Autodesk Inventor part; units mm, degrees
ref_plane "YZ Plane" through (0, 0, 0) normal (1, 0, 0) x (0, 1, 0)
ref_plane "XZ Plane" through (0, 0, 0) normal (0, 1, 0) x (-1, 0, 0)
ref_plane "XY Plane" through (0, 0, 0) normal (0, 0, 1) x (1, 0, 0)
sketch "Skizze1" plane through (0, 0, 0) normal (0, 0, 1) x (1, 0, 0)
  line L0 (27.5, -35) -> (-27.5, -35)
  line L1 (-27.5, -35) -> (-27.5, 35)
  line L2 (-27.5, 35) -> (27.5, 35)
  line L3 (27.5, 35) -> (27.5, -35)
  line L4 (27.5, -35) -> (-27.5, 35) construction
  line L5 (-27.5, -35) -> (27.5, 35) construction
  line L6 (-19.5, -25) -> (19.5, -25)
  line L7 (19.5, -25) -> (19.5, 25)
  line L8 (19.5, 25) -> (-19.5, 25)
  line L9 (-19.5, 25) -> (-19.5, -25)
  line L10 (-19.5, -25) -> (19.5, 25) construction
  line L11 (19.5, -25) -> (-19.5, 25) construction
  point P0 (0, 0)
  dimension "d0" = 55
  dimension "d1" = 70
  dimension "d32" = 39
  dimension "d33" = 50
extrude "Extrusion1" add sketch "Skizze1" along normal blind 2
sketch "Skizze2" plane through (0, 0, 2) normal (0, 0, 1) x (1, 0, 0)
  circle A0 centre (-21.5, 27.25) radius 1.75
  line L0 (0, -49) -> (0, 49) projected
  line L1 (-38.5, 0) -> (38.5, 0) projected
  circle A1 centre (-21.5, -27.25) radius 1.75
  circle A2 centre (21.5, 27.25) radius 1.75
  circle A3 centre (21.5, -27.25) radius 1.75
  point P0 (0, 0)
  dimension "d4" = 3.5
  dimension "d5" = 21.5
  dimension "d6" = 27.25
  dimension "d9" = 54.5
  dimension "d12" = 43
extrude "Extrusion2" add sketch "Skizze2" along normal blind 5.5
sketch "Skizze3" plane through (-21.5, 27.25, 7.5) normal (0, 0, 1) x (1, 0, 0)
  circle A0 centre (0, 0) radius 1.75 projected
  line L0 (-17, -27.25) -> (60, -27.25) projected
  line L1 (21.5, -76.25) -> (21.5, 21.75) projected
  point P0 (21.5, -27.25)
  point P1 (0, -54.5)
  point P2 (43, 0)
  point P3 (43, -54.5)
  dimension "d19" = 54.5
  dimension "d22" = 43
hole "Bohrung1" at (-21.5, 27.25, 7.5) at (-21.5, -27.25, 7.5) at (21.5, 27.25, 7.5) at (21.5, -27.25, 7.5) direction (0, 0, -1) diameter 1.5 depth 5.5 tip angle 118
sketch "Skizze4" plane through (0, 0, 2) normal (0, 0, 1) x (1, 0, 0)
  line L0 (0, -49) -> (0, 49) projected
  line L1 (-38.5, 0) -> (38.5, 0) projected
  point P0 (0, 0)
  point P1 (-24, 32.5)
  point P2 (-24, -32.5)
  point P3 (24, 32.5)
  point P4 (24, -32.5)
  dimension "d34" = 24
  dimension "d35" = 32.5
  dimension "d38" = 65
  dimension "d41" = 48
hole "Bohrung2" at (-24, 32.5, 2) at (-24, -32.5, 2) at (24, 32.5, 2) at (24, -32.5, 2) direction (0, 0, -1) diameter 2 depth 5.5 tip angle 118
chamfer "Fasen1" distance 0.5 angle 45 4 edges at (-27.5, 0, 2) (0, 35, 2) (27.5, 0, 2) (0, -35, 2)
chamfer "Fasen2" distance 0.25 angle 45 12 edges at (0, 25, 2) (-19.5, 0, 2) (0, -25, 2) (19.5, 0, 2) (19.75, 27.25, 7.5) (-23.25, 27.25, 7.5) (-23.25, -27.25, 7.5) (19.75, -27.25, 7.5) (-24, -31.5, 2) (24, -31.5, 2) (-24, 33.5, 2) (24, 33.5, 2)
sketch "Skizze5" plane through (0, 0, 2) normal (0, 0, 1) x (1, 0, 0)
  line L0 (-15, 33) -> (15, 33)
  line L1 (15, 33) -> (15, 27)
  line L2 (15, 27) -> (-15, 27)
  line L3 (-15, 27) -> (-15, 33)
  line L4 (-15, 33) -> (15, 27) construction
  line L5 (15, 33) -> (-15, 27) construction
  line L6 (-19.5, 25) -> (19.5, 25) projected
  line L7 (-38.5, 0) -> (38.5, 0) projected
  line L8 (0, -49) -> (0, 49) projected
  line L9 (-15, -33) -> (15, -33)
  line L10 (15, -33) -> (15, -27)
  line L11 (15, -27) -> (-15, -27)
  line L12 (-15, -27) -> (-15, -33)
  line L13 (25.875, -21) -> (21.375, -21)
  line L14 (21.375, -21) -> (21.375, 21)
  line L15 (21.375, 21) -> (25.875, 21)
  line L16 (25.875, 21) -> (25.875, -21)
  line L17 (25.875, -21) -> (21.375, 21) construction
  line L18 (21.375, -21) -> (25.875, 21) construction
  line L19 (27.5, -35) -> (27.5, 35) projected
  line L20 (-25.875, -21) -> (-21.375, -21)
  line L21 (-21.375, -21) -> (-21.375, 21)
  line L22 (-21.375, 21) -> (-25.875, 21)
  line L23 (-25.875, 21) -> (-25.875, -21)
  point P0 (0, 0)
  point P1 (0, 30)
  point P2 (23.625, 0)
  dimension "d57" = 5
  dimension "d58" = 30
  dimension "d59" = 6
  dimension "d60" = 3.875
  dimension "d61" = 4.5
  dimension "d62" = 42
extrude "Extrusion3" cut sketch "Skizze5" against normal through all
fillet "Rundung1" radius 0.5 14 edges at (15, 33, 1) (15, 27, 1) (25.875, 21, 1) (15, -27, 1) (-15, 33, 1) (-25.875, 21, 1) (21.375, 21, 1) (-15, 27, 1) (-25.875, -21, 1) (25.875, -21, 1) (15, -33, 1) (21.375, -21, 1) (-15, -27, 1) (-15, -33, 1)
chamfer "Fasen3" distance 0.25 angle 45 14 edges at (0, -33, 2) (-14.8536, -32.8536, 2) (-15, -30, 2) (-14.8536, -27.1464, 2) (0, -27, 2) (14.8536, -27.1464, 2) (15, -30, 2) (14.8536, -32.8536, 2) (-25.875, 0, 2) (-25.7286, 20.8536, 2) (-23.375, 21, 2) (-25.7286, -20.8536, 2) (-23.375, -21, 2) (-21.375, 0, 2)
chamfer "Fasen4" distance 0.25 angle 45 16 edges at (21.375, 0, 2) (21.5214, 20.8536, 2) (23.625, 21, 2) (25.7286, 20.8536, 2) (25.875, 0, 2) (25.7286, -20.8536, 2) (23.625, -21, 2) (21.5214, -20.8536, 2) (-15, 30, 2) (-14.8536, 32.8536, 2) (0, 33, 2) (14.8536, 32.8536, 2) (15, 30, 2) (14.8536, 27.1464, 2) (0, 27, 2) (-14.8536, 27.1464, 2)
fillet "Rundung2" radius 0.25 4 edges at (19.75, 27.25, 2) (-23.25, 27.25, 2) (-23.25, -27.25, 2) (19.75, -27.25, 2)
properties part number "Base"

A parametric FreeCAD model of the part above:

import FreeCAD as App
import Part
import Sketcher
from FreeCAD import Vector


def edges_at(feature, points):
    """Names of the edges that pass closest to the given points."""
    edges = feature.Shape.Edges
    near = lambda p: min(range(len(edges)), key=lambda i: edges[i].distToShape(Part.Vertex(*p))[0])
    return sorted({f"Edge{near(p) + 1}" for p in points})


def add_polygon(sketch, points):
    """Adds a closed chain of lines whose ends are joined by coincident constraints."""
    first, n = sketch.GeometryCount, len(points)
    for a, b in zip(points, points[1:] + points[:1]):
        sketch.addGeometry(Part.LineSegment(App.Vector(*a, 0), App.Vector(*b, 0)), False)
    for i in range(n):
        sketch.addConstraint(Sketcher.Constraint("Coincident", first + i, 2, first + (i + 1) % n, 1))

doc = App.newDocument("Part")
body = doc.addObject("PartDesign::Body", "Body")

# Sketch on XY plane
sketch1 = body.newObject("Sketcher::SketchObject", "Sketch")
sketch1.AttachmentSupport = (doc.getObject("XY_Plane"), [""])
sketch1.MapMode = "FlatFace"
add_polygon(sketch1, [(-28, -35), (28, -35), (28, 35), (-28, 35)])  # lines 0-3
add_polygon(sketch1, [(20, -25), (-20, -25), (-20, 25), (20, 25)])  # lines 4-7
sketch1.addConstraint([
    Sketcher.Constraint("Horizontal", 0),
    Sketcher.Constraint("Vertical", 1),
    Sketcher.Constraint("Horizontal", 2),
    Sketcher.Constraint("Vertical", 3),
    Sketcher.Constraint("Horizontal", 4),
    Sketcher.Constraint("Vertical", 5),
    Sketcher.Constraint("Horizontal", 6),
    Sketcher.Constraint("Vertical", 7),
    Sketcher.Constraint("Symmetric", 0, 2, 2, 2, -1, 1),
    Sketcher.Constraint("Symmetric", 4, 2, 6, 2, -1, 1),
    Sketcher.Constraint("DistanceX", 0, 1, 0, 2, 55.0),
    Sketcher.Constraint("DistanceX", 4, 2, 4, 1, 39.0),
    Sketcher.Constraint("DistanceY", 1, 1, 1, 2, 70.0),
    Sketcher.Constraint("DistanceY", 5, 1, 5, 2, 50.0),
])
pad1 = body.newObject("PartDesign::Pad", "Pad")
pad1.Profile = sketch1
pad1.Length = 2

# Sketch on XY plane
sketch2 = body.newObject("Sketcher::SketchObject", "Sketch001")
sketch2.AttachmentSupport = (doc.getObject("XY_Plane"), [""])
sketch2.MapMode = "FlatFace"
sketch2.AttachmentOffset = App.Placement(Vector(0, 0, 2), App.Rotation())
sketch2.addGeometry([
    Part.Circle(Vector(-21.5, 27.2, 0), Vector(0, 0, 1), 1.8),
    Part.Circle(Vector(-21.5, -27.2, 0), Vector(0, 0, 1), 1.8),
    Part.Circle(Vector(21.5, 27.2, 0), Vector(0, 0, 1), 1.8),
    Part.Circle(Vector(21.5, -27.2, 0), Vector(0, 0, 1), 1.8),
], False)
sketch2.addConstraint([
    Sketcher.Constraint("Equal", 0, 1),
    Sketcher.Constraint("Equal", 1, 2),
    Sketcher.Constraint("Equal", 2, 3),
    Sketcher.Constraint("Symmetric", 1, 3, 2, 3, -1, 1),
    Sketcher.Constraint("Symmetric", 0, 3, 3, 3, -1, 1),
    Sketcher.Constraint("Symmetric", 0, 3, 2, 3, -2),
    Sketcher.Constraint("Diameter", 0, 3.5),
    Sketcher.Constraint("DistanceX", 0, 3, 2, 3, 43.0),
    Sketcher.Constraint("DistanceY", 1, 3, 0, 3, 54.5),
])
pad2 = body.newObject("PartDesign::Pad", "Pad001")
pad2.Profile = sketch2
pad2.Length = 5.5

# Sketch on XY plane
sketch3 = body.newObject("Sketcher::SketchObject", "Sketch002")
sketch3.AttachmentSupport = (doc.getObject("XY_Plane"), [""])
sketch3.MapMode = "FlatFace"
sketch3.AttachmentOffset = App.Placement(Vector(0, 0, 7.5), App.Rotation())
sketch3.addGeometry([
    Part.Circle(Vector(-21.5, 27.2, 0), Vector(0, 0, 1), 0.8),
    Part.Circle(Vector(-21.5, -27.2, 0), Vector(0, 0, 1), 0.8),
    Part.Circle(Vector(21.5, 27.2, 0), Vector(0, 0, 1), 0.8),
    Part.Circle(Vector(21.5, -27.2, 0), Vector(0, 0, 1), 0.8),
], False)
sketch3.addConstraint([
    Sketcher.Constraint("Equal", 0, 1),
    Sketcher.Constraint("Equal", 1, 2),
    Sketcher.Constraint("Equal", 2, 3),
    Sketcher.Constraint("Symmetric", 1, 3, 2, 3, -1, 1),
    Sketcher.Constraint("Symmetric", 0, 3, 3, 3, -1, 1),
    Sketcher.Constraint("Symmetric", 0, 3, 2, 3, -2),
    Sketcher.Constraint("Diameter", 0, 1.5),
    Sketcher.Constraint("DistanceX", 0, 3, 2, 3, 43.0),
    Sketcher.Constraint("DistanceY", 1, 3, 0, 3, 54.5),
])
doc.recompute()
hole = body.newObject("PartDesign::Hole", "Hole")
hole.Profile = sketch3
hole.ThreadType = "None"
hole.Diameter = 1.5
hole.DepthType = "Dimension"
hole.Depth = 5.5
hole.DrillPoint = "Angled"
hole.DrillPointAngle = 118

# Sketch on XY plane
sketch4 = body.newObject("Sketcher::SketchObject", "Sketch003")
sketch4.AttachmentSupport = (doc.getObject("XY_Plane"), [""])
sketch4.MapMode = "FlatFace"
sketch4.AttachmentOffset = App.Placement(Vector(0, 0, 2), App.Rotation())
sketch4.addGeometry([
    Part.Circle(Vector(-24, 32.5, 0), Vector(0, 0, 1), 1),
    Part.Circle(Vector(-24, -32.5, 0), Vector(0, 0, 1), 1),
    Part.Circle(Vector(24, 32.5, 0), Vector(0, 0, 1), 1),
    Part.Circle(Vector(24, -32.5, 0), Vector(0, 0, 1), 1),
], False)
sketch4.addConstraint([
    Sketcher.Constraint("Equal", 0, 1),
    Sketcher.Constraint("Equal", 1, 2),
    Sketcher.Constraint("Equal", 2, 3),
    Sketcher.Constraint("Symmetric", 1, 3, 2, 3, -1, 1),
    Sketcher.Constraint("Symmetric", 0, 3, 3, 3, -1, 1),
    Sketcher.Constraint("Symmetric", 0, 3, 2, 3, -2),
    Sketcher.Constraint("Diameter", 0, 2.0),
    Sketcher.Constraint("DistanceX", 0, 3, -1, 1, 24.0),
    Sketcher.Constraint("DistanceY", 1, 3, 0, 3, 65.0),
])
doc.recompute()
hole2 = body.newObject("PartDesign::Hole", "Hole001")
hole2.Profile = sketch4
hole2.ThreadType = "None"
hole2.Diameter = 2
hole2.DepthType = "Dimension"
hole2.Depth = 5.5
hole2.DrillPoint = "Angled"
hole2.DrillPointAngle = 118
doc.recompute()

chamfer = body.newObject("PartDesign::Chamfer", "Chamfer")
chamfer.Base = (hole2, edges_at(hole2, [
    (-27.5, 0, 2),
    (0, 35, 2),
    (27.5, 0, 2),
    (0, -35, 2),
]))
chamfer.Size = 0.5
doc.recompute()

chamfer2 = body.newObject("PartDesign::Chamfer", "Chamfer001")
chamfer2.Base = (chamfer, edges_at(chamfer, [
    (0, 25, 2),
    (-19.5, 0, 2),
    (0, -25, 2),
    (19.5, 0, 2),
    (19.75, 27.25, 7.5),
    (-23.25, 27.25, 7.5),
    (-23.25, -27.25, 7.5),
    (19.75, -27.25, 7.5),
    (-24, -31.5, 2),
    (24, -31.5, 2),
    (-24, 33.5, 2),
    (24, 33.5, 2),
]))
chamfer2.Size = 0.25

# Sketch on XY plane
sketch5 = body.newObject("Sketcher::SketchObject", "Sketch004")
sketch5.AttachmentSupport = (doc.getObject("XY_Plane"), [""])
sketch5.MapMode = "FlatFace"
sketch5.AttachmentOffset = App.Placement(Vector(0, 0, 2), App.Rotation())
add_polygon(sketch5, [(21.4, 21), (21.4, -21), (25.9, -21), (25.9, 21)])  # lines 0-3
add_polygon(sketch5, [(15, -27), (-15, -27), (-15, -33), (15, -33)])  # lines 4-7
add_polygon(sketch5, [(-21.4, -21), (-21.4, 21), (-25.9, 21), (-25.9, -21)])  # lines 8-11
add_polygon(sketch5, [(-15, 33), (-15, 27), (15, 27), (15, 33)])  # lines 12-15
sketch5.addConstraint([
    Sketcher.Constraint("Vertical", 0),
    Sketcher.Constraint("Horizontal", 1),
    Sketcher.Constraint("Vertical", 2),
    Sketcher.Constraint("Horizontal", 3),
    Sketcher.Constraint("Horizontal", 4),
    Sketcher.Constraint("Vertical", 5),
    Sketcher.Constraint("Horizontal", 6),
    Sketcher.Constraint("Vertical", 7),
    Sketcher.Constraint("Vertical", 8),
    Sketcher.Constraint("Horizontal", 9),
    Sketcher.Constraint("Vertical", 10),
    Sketcher.Constraint("Horizontal", 11),
    Sketcher.Constraint("Vertical", 12),
    Sketcher.Constraint("Horizontal", 13),
    Sketcher.Constraint("Vertical", 14),
    Sketcher.Constraint("Horizontal", 15),
    Sketcher.Constraint("Symmetric", 0, 2, 8, 2, -1, 1),
    Sketcher.Constraint("Symmetric", 2, 2, 10, 2, -1, 1),
    Sketcher.Constraint("Symmetric", 7, 2, 12, 2, -1, 1),
    Sketcher.Constraint("Symmetric", 5, 2, 14, 2, -1, 1),
    Sketcher.Constraint("Horizontal", 3, 2, 8, 2),
    Sketcher.Constraint("Vertical", 5, 2, 12, 2),
    Sketcher.Constraint("DistanceX", 4, 2, 4, 1, 30.0),
    Sketcher.Constraint("DistanceY", 0, 2, 0, 1, 42.0),
    Sketcher.Constraint("DistanceY", 5, 2, 5, 1, 6.0),
    Sketcher.Constraint("DistanceX", 1, 1, 1, 2, 4.5),
    Sketcher.Constraint("DistanceY", 4, 2, 0, 2, 6.0),
    Sketcher.Constraint("DistanceX", 8, 2, 3, 2, 42.75),
])
pocket1 = body.newObject("PartDesign::Pocket", "Pocket")
pocket1.Profile = sketch5
pocket1.Type = "ThroughAll"
doc.recompute()

fillet = body.newObject("PartDesign::Fillet", "Fillet")
fillet.Base = (pocket1, edges_at(pocket1, [
    (15, 33, 1),
    (15, 27, 1),
    (25.875, 21, 1),
    (15, -27, 1),
    (-15, 33, 1),
    (-25.875, 21, 1),
    (21.375, 21, 1),
    (-15, 27, 1),
    (-25.875, -21, 1),
    (25.875, -21, 1),
    (15, -33, 1),
    (21.375, -21, 1),
    (-15, -27, 1),
    (-15, -33, 1),
]))
fillet.Radius = 0.5
doc.recompute()

chamfer3 = body.newObject("PartDesign::Chamfer", "Chamfer002")
chamfer3.Base = (fillet, edges_at(fillet, [
    (0, -33, 2),
    (-14.854, -32.854, 2),
    (-15, -30, 2),
    (-14.854, -27.146, 2),
    (0, -27, 2),
    (14.854, -27.146, 2),
    (15, -30, 2),
    (14.854, -32.854, 2),
    (-25.875, 0, 2),
    (-25.729, 20.854, 2),
    (-23.375, 21, 2),
    (-25.729, -20.854, 2),
    (-23.375, -21, 2),
    (-21.375, 0, 2),
]))
chamfer3.Size = 0.25
doc.recompute()

chamfer4 = body.newObject("PartDesign::Chamfer", "Chamfer003")
chamfer4.Base = (chamfer3, edges_at(chamfer3, [
    (21.375, 0, 2),
    (21.521, 20.854, 2),
    (23.625, 21, 2),
    (25.729, 20.854, 2),
    (25.875, 0, 2),
    (25.729, -20.854, 2),
    (23.625, -21, 2),
    (21.521, -20.854, 2),
    (-15, 30, 2),
    (-14.854, 32.854, 2),
    (0, 33, 2),
    (14.854, 32.854, 2),
    (15, 30, 2),
    (14.854, 27.146, 2),
    (0, 27, 2),
    (-14.854, 27.146, 2),
]))
chamfer4.Size = 0.25
doc.recompute()

fillet2 = body.newObject("PartDesign::Fillet", "Fillet001")
fillet2.Base = (chamfer4, edges_at(chamfer4, [
    (19.75, 27.25, 2),
    (-23.25, 27.25, 2),
    (-23.25, -27.25, 2),
    (19.75, -27.25, 2),
]))
fillet2.Radius = 0.25

doc.recompute()
